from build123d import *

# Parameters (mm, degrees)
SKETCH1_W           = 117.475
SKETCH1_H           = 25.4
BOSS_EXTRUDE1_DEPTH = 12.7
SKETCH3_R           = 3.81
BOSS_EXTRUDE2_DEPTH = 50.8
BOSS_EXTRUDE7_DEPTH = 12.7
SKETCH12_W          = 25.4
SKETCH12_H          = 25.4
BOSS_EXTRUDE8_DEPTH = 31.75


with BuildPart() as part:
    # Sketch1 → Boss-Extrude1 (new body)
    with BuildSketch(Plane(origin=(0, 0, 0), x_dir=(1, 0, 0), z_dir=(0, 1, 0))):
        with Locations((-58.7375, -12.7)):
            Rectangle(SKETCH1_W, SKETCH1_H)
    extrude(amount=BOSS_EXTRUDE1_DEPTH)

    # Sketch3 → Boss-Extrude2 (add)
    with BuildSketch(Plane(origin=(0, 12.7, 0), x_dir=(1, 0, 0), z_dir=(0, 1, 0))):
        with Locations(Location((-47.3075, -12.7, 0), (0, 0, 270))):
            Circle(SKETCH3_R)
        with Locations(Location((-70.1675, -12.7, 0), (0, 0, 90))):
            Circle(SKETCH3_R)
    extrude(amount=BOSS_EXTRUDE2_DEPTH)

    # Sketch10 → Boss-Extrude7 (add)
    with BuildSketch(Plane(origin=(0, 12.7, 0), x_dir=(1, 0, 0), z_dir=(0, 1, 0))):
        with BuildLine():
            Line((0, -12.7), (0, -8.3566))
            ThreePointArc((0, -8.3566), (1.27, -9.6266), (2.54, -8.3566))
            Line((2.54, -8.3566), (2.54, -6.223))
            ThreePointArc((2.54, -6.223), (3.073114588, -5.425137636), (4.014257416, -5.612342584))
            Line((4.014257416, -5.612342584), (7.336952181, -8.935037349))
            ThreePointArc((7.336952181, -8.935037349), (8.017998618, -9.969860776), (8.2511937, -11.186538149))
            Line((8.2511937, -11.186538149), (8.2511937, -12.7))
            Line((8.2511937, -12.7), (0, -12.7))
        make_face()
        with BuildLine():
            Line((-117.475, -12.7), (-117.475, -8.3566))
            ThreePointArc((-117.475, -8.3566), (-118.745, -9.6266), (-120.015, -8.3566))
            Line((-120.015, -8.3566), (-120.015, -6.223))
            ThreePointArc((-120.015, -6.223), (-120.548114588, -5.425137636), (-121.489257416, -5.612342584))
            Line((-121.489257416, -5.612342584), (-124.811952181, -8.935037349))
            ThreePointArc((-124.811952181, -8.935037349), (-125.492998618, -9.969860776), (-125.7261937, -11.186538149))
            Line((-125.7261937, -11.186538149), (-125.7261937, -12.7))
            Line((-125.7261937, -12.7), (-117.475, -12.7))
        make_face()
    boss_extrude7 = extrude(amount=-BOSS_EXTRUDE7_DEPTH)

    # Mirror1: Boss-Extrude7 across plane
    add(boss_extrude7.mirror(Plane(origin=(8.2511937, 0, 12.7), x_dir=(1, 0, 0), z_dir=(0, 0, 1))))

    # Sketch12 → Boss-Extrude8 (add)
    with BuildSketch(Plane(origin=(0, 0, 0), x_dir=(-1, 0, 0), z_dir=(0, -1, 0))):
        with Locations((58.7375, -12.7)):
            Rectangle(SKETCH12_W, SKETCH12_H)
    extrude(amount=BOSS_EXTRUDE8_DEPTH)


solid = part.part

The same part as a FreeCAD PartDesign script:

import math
import FreeCAD as App
import Part
import Sketcher

V = App.Vector
Q = App.Units.Quantity


def add_polygon(sketch, points):
    """Adds a closed chain of lines whose ends are joined by coincident constraints."""
    first, n = sketch.GeometryCount, len(points)
    for a, b in zip(points, points[1:] + points[:1]):
        sketch.addGeometry(Part.LineSegment(App.Vector(*a, 0), App.Vector(*b, 0)), False)
    for i in range(n):
        sketch.addConstraint(Sketcher.Constraint("Coincident", first + i, 2, first + (i + 1) % n, 1))

doc = App.newDocument("Part")
body = doc.addObject("PartDesign::Body", "Body")

sketch1 = body.newObject("Sketcher::SketchObject", "Sketch")
sketch1.AttachmentSupport = (doc.getObject("XZ_Plane"), [""])
sketch1.MapMode = "FlatFace"
add_polygon(sketch1, [(-117, 0), (-117, 25), (0, 25), (0, 0)])
sketch1.addConstraint([
    Sketcher.Constraint("Vertical", 0),
    Sketcher.Constraint("Horizontal", 1),
    Sketcher.Constraint("Vertical", 2),
    Sketcher.Constraint("Horizontal", 3),
    Sketcher.Constraint("Coincident", 2, 2, -1, 1),
    Sketcher.Constraint("DistanceY", 0, 1, 0, 2, Q("1 in")),
    Sketcher.Constraint("DistanceX", 1, 1, 1, 2, Q("4.625 in")),
])
pad1 = body.newObject("PartDesign::Pad", "Pad")
pad1.Profile = sketch1
pad1.Length = Q("0.5 in")
pad1.Reversed = True

sketch2 = body.newObject("Sketcher::SketchObject", "Sketch001")
sketch2.AttachmentSupport = (doc.getObject("XZ_Plane"), [""])
sketch2.MapMode = "FlatFace"
sketch2.AttachmentOffset = App.Placement(V(0, 0, -0.5 * 25.4), App.Rotation())
sketch2.addGeometry([
    Part.Circle(V(-47.3, 12.7, 0), V(0, 0, 1), 3.8),
    Part.Circle(V(-70.2, 12.7, 0), V(0, 0, 1), 3.8),
], False)
sketch2.addConstraint([
    Sketcher.Constraint("Equal", 0, 1),
    Sketcher.Constraint("Horizontal", 0, 3, 1, 3),
    Sketcher.Constraint("Diameter", 0, Q("0.3 in")),
    Sketcher.Constraint("DistanceY", -1, 1, 0, 3, Q("0.5 in")),
    Sketcher.Constraint("DistanceX", 1, 3, 0, 3, Q("0.9 in")),
    Sketcher.Constraint("DistanceX", 0, 3, -1, 1, Q("1.8625 in")),
])
pad2 = body.newObject("PartDesign::Pad", "Pad001")
pad2.Profile = sketch2
pad2.Length = Q("2 in")
pad2.Reversed = True

sketch3 = body.newObject("Sketcher::SketchObject", "Sketch002")
sketch3.AttachmentSupport = (doc.getObject("XZ_Plane"), [""])
sketch3.MapMode = "FlatFace"
sketch3.AttachmentOffset = App.Placement(V(0, 0, -0.5 * 25.4), App.Rotation())
sketch3.addGeometry([
    Part.LineSegment(V(0, 8.4, 0), V(0, 12.7, 0)),
    Part.LineSegment(V(0, 12.7, 0), V(8.3, 12.7, 0)),
    Part.LineSegment(V(8.3, 12.7, 0), V(8.3, 11.2, 0)),
    Part.ArcOfCircle(Part.Circle(V(5.1, 11.2, 0), V(0, 0, 1), 3.2), math.radians(-45), math.radians(0)),
    Part.LineSegment(V(7.3, 8.9, 0), V(4, 5.6, 0)),
    Part.ArcOfCircle(Part.Circle(V(3.4, 6.2, 0), V(0, 0, 1), 0.9), math.radians(180), math.radians(315)),
    Part.LineSegment(V(2.5, 6.2, 0), V(2.5, 8.4, 0)),
    Part.ArcOfCircle(Part.Circle(V(1.3, 8.4, 0), V(0, 0, 1), 1.3), math.radians(0), math.radians(180)),
    Part.LineSegment(V(-117.5, 12.7, 0), V(-117.5, 8.4, 0)),
    Part.ArcOfCircle(Part.Circle(V(-118.7, 8.4, 0), V(0, 0, 1), 1.3), math.radians(0), math.radians(180)),
    Part.LineSegment(V(-120, 8.4, 0), V(-120, 6.2, 0)),
    Part.ArcOfCircle(Part.Circle(V(-120.9, 6.2, 0), V(0, 0, 1), 0.9), math.radians(-135), math.radians(0)),
    Part.LineSegment(V(-121.5, 5.6, 0), V(-124.8, 8.9, 0)),
    Part.ArcOfCircle(Part.Circle(V(-122.6, 11.2, 0), V(0, 0, 1), 3.2), math.radians(180), math.radians(225)),
    Part.LineSegment(V(-125.7, 11.2, 0), V(-125.7, 12.7, 0)),
    Part.LineSegment(V(-125.7, 12.7, 0), V(-117.5, 12.7, 0)),
], False)
sketch3.addConstraint([
    Sketcher.Constraint("Coincident", 0, 2, 1, 1),
    Sketcher.Constraint("Coincident", 1, 2, 2, 1),
    Sketcher.Constraint("Coincident", 2, 2, 3, 2),
    Sketcher.Constraint("Coincident", 3, 1, 4, 1),
    Sketcher.Constraint("Tangent", 4, 2, 5, 2),
    Sketcher.Constraint("Tangent", 5, 1, 6, 1),
    Sketcher.Constraint("Tangent", 6, 2, 7, 1),
    Sketcher.Constraint("Tangent", 7, 2, 0, 1),
    Sketcher.Constraint("Tangent", 8, 2, 9, 1),
    Sketcher.Constraint("Tangent", 9, 2, 10, 1),
    Sketcher.Constraint("Tangent", 10, 2, 11, 2),
    Sketcher.Constraint("Tangent", 11, 1, 12, 1),
    Sketcher.Constraint("Coincident", 12, 2, 13, 2),
    Sketcher.Constraint("Coincident", 13, 1, 14, 1),
    Sketcher.Constraint("Coincident", 14, 2, 15, 1),
    Sketcher.Constraint("Coincident", 15, 2, 8, 1),
    Sketcher.Constraint("Vertical", 0),
    Sketcher.Constraint("Horizontal", 1),
    Sketcher.Constraint("Vertical", 2),
    Sketcher.Constraint("Vertical", 6),
    Sketcher.Constraint("Vertical", 8),
    Sketcher.Constraint("Vertical", 10),
    Sketcher.Constraint("Vertical", 14),
    Sketcher.Constraint("Horizontal", 15),
    Sketcher.Constraint("Equal", 7, 9),
    Sketcher.Constraint("Equal", 5, 11),
    Sketcher.Constraint("Equal", 3, 13),
    Sketcher.Constraint("PointOnObject", 0, 2, -2),
    Sketcher.Constraint("Perpendicular", 4, 12),
    Sketcher.Constraint("Horizontal", 7, 3, 9, 3),
    Sketcher.Constraint("Horizontal", 5, 3, 11, 3),
    Sketcher.Constraint("Horizontal", 3, 3, 13, 3),
    Sketcher.Constraint("Horizontal", 4, 2, 11, 1),
    Sketcher.Constraint("Horizontal", 3, 1, 12, 2),
    Sketcher.Constraint("Horizontal", 2, 2, 13, 1),
    Sketcher.Constraint("Horizontal", 1, 2, 14, 2),
    Sketcher.Constraint("Radius", 7, Q("0.05 in")),
    Sketcher.Constraint("Radius", 3, Q("0.125 in")),
    Sketcher.Constraint("Radius", 5, Q("0.034 in")),
    Sketcher.Constraint("DistanceY", -1, 1, 0, 2, Q("0.5 in")),
    Sketcher.Constraint("DistanceY", 0, 1, 0, 2, Q("0.171 in")),
    Sketcher.Constraint("DistanceY", 6, 1, 6, 2, Q("0.084 in")),
    Sketcher.Constraint("Distance", 4, Q("0.185 in")),
    Sketcher.Constraint("DistanceX", 9, 3, -1, 1, Q("4.675 in")),
    Sketcher.Constraint("DistanceY", 2, 2, 2, 1, Q("1.513462 mm")),
    Sketcher.Constraint("DistanceX", 1, 1, 1, 2, Q("8.251194 mm")),
])
pad3 = body.newObject("PartDesign::Pad", "Pad002")
pad3.Profile = sketch3
pad3.Length = Q("0.5 in")
doc.recompute()

datumplane = body.newObject("PartDesign::Plane", "DatumPlane")
datumplane.AttachmentSupport = (doc.getObject("XY_Plane"), [""])
datumplane.MapMode = "FlatFace"
datumplane.AttachmentOffset = App.Placement(V(0, 0, 0.5 * 25.4), App.Rotation())
mirrored = body.newObject("PartDesign::Mirrored", "Mirrored")
mirrored.Originals = [pad3]
mirrored.MirrorPlane = (datumplane, [""])
body.Tip = mirrored

sketch4 = body.newObject("Sketcher::SketchObject", "Sketch003")
sketch4.AttachmentSupport = (doc.getObject("XZ_Plane"), [""])
sketch4.MapMode = "FlatFace"
add_polygon(sketch4, [(-46, 0), (-46, 25), (-71, 25), (-71, 0)])
sketch4.addConstraint([
    Sketcher.Constraint("Vertical", 0),
    Sketcher.Constraint("Horizontal", 1),
    Sketcher.Constraint("Vertical", 2),
    Sketcher.Constraint("Horizontal", 3),
    Sketcher.Constraint("PointOnObject", 2, 2, -1),
    Sketcher.Constraint("Equal", 3, 0),
    Sketcher.Constraint("DistanceX", 1, 2, 1, 1, Q("1 in")),
    Sketcher.Constraint("DistanceX", 0, 2, -1, 1, Q("1.8125 in")),
])
pad4 = body.newObject("PartDesign::Pad", "Pad003")
pad4.Profile = sketch4
pad4.Length = Q("1.25 in")

doc.recompute()
